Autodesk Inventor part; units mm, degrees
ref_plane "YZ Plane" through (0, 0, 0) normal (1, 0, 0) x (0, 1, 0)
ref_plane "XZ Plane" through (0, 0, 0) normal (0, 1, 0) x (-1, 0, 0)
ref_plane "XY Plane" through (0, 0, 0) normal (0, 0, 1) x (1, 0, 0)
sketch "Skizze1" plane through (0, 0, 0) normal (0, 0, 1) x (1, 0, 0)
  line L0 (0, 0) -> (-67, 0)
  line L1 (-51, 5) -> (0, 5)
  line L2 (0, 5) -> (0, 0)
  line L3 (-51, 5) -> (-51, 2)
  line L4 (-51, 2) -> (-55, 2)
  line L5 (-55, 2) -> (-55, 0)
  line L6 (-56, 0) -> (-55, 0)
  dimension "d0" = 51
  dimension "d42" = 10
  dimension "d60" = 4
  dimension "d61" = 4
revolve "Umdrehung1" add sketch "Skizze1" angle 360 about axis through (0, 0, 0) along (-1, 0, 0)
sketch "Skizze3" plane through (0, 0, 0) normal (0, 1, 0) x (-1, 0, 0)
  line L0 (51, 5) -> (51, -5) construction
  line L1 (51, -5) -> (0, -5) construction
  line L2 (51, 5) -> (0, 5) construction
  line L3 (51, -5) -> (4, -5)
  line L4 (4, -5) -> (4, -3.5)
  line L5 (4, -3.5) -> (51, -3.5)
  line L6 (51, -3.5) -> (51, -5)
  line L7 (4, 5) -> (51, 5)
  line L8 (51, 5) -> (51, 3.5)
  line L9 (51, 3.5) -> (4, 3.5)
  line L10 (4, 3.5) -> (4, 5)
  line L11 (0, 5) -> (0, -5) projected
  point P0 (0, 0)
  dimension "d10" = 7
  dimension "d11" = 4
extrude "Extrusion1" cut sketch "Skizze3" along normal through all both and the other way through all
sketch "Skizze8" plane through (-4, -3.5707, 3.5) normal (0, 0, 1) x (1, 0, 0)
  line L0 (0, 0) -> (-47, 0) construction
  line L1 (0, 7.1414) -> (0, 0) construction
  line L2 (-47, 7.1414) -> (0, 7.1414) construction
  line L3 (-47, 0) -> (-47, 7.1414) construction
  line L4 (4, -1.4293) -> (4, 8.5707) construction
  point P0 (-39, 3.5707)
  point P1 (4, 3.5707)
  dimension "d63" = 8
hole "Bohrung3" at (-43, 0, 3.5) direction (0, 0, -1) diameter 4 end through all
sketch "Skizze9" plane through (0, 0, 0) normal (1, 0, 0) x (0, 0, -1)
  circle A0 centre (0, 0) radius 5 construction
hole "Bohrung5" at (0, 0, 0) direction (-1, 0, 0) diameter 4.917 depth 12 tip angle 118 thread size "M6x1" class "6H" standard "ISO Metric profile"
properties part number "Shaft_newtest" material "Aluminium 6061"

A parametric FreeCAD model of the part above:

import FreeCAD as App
import Part
import Sketcher
from FreeCAD import Vector
Q = App.Units.Quantity

doc = App.newDocument("Part")
body = doc.addObject("PartDesign::Body", "Body")

sketch1 = body.newObject("Sketcher::SketchObject", "Sketch")
sketch1.AttachmentSupport = (doc.getObject("XY_Plane"), [""])
sketch1.MapMode = "FlatFace"
sketch1.addGeometry(Part.LineSegment(Vector(-55, 0, 0), Vector(0, 0, 0)), False)
sketch1.addGeometry(Part.LineSegment(Vector(0, 0, 0), Vector(0, 5, 0)), False)
sketch1.addGeometry(Part.LineSegment(Vector(0, 5, 0), Vector(-51, 5, 0)), False)
sketch1.addGeometry(Part.LineSegment(Vector(-51, 5, 0), Vector(-51, 2, 0)), False)
sketch1.addGeometry(Part.LineSegment(Vector(-51, 2, 0), Vector(-55, 2, 0)), False)
sketch1.addGeometry(Part.LineSegment(Vector(-55, 2, 0), Vector(-55, 0, 0)), False)
sketch1.addConstraint(Sketcher.Constraint("Coincident", 0, 2, 1, 1))
sketch1.addConstraint(Sketcher.Constraint("Coincident", 1, 2, 2, 1))
sketch1.addConstraint(Sketcher.Constraint("Coincident", 2, 2, 3, 1))
sketch1.addConstraint(Sketcher.Constraint("Coincident", 3, 2, 4, 1))
sketch1.addConstraint(Sketcher.Constraint("Coincident", 4, 2, 5, 1))
sketch1.addConstraint(Sketcher.Constraint("Coincident", 5, 2, 0, 1))
sketch1.addConstraint(Sketcher.Constraint("Horizontal", 0))
sketch1.addConstraint(Sketcher.Constraint("Vertical", 1))
sketch1.addConstraint(Sketcher.Constraint("Horizontal", 2))
sketch1.addConstraint(Sketcher.Constraint("Vertical", 3))
sketch1.addConstraint(Sketcher.Constraint("Horizontal", 4))
sketch1.addConstraint(Sketcher.Constraint("Vertical", 5))
sketch1.addConstraint(Sketcher.Constraint("Coincident", 0, 2, -1, 1))
sketch1.addConstraint(Sketcher.Constraint("DistanceX", 2, 2, 2, 1, Q("51 mm")))
sketch1.addConstraint(Sketcher.Constraint("DistanceX", 4, 2, 4, 1, Q("4 mm")))
sketch1.addConstraint(Sketcher.Constraint("DistanceY", 1, 1, 1, 2, Q("5 mm")))
sketch1.addConstraint(Sketcher.Constraint("DistanceY", 3, 2, 3, 1, Q("3 mm")))
revolution = body.newObject("PartDesign::Revolution", "Revolution")
revolution.Profile = sketch1
revolution.ReferenceAxis = (sketch1, ["H_Axis"])
revolution.Angle = 360

sketch2 = body.newObject("Sketcher::SketchObject", "Sketch001")
sketch2.AttachmentSupport = (doc.getObject("XZ_Plane"), [""])
sketch2.MapMode = "FlatFace"
sketch2.addGeometry(Part.LineSegment(Vector(-4, -5, 0), Vector(-51, -5, 0)), False)
sketch2.addGeometry(Part.LineSegment(Vector(-51, -5, 0), Vector(-51, -3.5, 0)), False)
sketch2.addGeometry(Part.LineSegment(Vector(-51, -3.5, 0), Vector(-4, -3.5, 0)), False)
sketch2.addGeometry(Part.LineSegment(Vector(-4, -3.5, 0), Vector(-4, -5, 0)), False)
sketch2.addGeometry(Part.LineSegment(Vector(-51, 5, 0), Vector(-4, 5, 0)), False)
sketch2.addGeometry(Part.LineSegment(Vector(-4, 5, 0), Vector(-4, 3.5, 0)), False)
sketch2.addGeometry(Part.LineSegment(Vector(-4, 3.5, 0), Vector(-51, 3.5, 0)), False)
sketch2.addGeometry(Part.LineSegment(Vector(-51, 3.5, 0), Vector(-51, 5, 0)), False)
sketch2.addConstraint(Sketcher.Constraint("Coincident", 0, 2, 1, 1))
sketch2.addConstraint(Sketcher.Constraint("Coincident", 1, 2, 2, 1))
sketch2.addConstraint(Sketcher.Constraint("Coincident", 2, 2, 3, 1))
sketch2.addConstraint(Sketcher.Constraint("Coincident", 3, 2, 0, 1))
sketch2.addConstraint(Sketcher.Constraint("Coincident", 4, 2, 5, 1))
sketch2.addConstraint(Sketcher.Constraint("Coincident", 5, 2, 6, 1))
sketch2.addConstraint(Sketcher.Constraint("Coincident", 6, 2, 7, 1))
sketch2.addConstraint(Sketcher.Constraint("Coincident", 7, 2, 4, 1))
sketch2.addConstraint(Sketcher.Constraint("Horizontal", 0))
sketch2.addConstraint(Sketcher.Constraint("Vertical", 1))
sketch2.addConstraint(Sketcher.Constraint("Horizontal", 2))
sketch2.addConstraint(Sketcher.Constraint("Vertical", 3))
sketch2.addConstraint(Sketcher.Constraint("Horizontal", 4))
sketch2.addConstraint(Sketcher.Constraint("Vertical", 5))
sketch2.addConstraint(Sketcher.Constraint("Horizontal", 6))
sketch2.addConstraint(Sketcher.Constraint("Vertical", 7))
sketch2.addConstraint(Sketcher.Constraint("Symmetric", 3, 2, 4, 2, -1))
sketch2.addConstraint(Sketcher.Constraint("Symmetric", 1, 2, 6, 2, -1))
sketch2.addConstraint(Sketcher.Constraint("DistanceX", 2, 2, -1, 1, Q("4 mm")))
sketch2.addConstraint(Sketcher.Constraint("DistanceY", 2, 2, 5, 2, Q("7 mm")))
sketch2.addConstraint(Sketcher.Constraint("DistanceX", 0, 2, 0, 1, Q("47 mm")))
sketch2.addConstraint(Sketcher.Constraint("DistanceY", 1, 1, 1, 2, Q("1.5 mm")))
pocket1 = body.newObject("PartDesign::Pocket", "Pocket")
pocket1.Profile = sketch2
pocket1.Type = "ThroughAll"
pocket1.Midplane = True

sketch3 = body.newObject("Sketcher::SketchObject", "Sketch002")
sketch3.AttachmentSupport = (doc.getObject("XY_Plane"), [""])
sketch3.MapMode = "FlatFace"
sketch3.AttachmentOffset = App.Placement(Vector(0, 0, 3.5), App.Rotation())
sketch3.addGeometry(Part.Circle(Vector(-43, 0, 0), Vector(0, 0, 1), 2), False)
sketch3.addConstraint(Sketcher.Constraint("PointOnObject", 0, 3, -1))
sketch3.addConstraint(Sketcher.Constraint("Diameter", 0, Q("4 mm")))
sketch3.addConstraint(Sketcher.Constraint("DistanceX", 0, 3, -1, 1, Q("43 mm")))
doc.recompute()
hole = body.newObject("PartDesign::Hole", "Hole")
hole.Profile = sketch3
hole.ThreadType = "None"
hole.Diameter = 4
hole.DepthType = "ThroughAll"

sketch4 = body.newObject("Sketcher::SketchObject", "Sketch003")
sketch4.AttachmentSupport = (doc.getObject("YZ_Plane"), [""])
sketch4.MapMode = "FlatFace"
sketch4.addGeometry(Part.Circle(Vector(0, 0, 0), Vector(0, 0, 1), 2.4585), False)
sketch4.addConstraint(Sketcher.Constraint("Coincident", 0, 3, -1, 1))
sketch4.addConstraint(Sketcher.Constraint("Diameter", 0, Q("4.917 mm")))
doc.recompute()
hole2 = body.newObject("PartDesign::Hole", "Hole001")
hole2.Profile = sketch4
hole2.ThreadType = "None"
hole2.Diameter = 4.917
hole2.DepthType = "Dimension"
hole2.Depth = 12
hole2.DrillPoint = "Angled"
hole2.DrillPointAngle = 118

doc.recompute()
